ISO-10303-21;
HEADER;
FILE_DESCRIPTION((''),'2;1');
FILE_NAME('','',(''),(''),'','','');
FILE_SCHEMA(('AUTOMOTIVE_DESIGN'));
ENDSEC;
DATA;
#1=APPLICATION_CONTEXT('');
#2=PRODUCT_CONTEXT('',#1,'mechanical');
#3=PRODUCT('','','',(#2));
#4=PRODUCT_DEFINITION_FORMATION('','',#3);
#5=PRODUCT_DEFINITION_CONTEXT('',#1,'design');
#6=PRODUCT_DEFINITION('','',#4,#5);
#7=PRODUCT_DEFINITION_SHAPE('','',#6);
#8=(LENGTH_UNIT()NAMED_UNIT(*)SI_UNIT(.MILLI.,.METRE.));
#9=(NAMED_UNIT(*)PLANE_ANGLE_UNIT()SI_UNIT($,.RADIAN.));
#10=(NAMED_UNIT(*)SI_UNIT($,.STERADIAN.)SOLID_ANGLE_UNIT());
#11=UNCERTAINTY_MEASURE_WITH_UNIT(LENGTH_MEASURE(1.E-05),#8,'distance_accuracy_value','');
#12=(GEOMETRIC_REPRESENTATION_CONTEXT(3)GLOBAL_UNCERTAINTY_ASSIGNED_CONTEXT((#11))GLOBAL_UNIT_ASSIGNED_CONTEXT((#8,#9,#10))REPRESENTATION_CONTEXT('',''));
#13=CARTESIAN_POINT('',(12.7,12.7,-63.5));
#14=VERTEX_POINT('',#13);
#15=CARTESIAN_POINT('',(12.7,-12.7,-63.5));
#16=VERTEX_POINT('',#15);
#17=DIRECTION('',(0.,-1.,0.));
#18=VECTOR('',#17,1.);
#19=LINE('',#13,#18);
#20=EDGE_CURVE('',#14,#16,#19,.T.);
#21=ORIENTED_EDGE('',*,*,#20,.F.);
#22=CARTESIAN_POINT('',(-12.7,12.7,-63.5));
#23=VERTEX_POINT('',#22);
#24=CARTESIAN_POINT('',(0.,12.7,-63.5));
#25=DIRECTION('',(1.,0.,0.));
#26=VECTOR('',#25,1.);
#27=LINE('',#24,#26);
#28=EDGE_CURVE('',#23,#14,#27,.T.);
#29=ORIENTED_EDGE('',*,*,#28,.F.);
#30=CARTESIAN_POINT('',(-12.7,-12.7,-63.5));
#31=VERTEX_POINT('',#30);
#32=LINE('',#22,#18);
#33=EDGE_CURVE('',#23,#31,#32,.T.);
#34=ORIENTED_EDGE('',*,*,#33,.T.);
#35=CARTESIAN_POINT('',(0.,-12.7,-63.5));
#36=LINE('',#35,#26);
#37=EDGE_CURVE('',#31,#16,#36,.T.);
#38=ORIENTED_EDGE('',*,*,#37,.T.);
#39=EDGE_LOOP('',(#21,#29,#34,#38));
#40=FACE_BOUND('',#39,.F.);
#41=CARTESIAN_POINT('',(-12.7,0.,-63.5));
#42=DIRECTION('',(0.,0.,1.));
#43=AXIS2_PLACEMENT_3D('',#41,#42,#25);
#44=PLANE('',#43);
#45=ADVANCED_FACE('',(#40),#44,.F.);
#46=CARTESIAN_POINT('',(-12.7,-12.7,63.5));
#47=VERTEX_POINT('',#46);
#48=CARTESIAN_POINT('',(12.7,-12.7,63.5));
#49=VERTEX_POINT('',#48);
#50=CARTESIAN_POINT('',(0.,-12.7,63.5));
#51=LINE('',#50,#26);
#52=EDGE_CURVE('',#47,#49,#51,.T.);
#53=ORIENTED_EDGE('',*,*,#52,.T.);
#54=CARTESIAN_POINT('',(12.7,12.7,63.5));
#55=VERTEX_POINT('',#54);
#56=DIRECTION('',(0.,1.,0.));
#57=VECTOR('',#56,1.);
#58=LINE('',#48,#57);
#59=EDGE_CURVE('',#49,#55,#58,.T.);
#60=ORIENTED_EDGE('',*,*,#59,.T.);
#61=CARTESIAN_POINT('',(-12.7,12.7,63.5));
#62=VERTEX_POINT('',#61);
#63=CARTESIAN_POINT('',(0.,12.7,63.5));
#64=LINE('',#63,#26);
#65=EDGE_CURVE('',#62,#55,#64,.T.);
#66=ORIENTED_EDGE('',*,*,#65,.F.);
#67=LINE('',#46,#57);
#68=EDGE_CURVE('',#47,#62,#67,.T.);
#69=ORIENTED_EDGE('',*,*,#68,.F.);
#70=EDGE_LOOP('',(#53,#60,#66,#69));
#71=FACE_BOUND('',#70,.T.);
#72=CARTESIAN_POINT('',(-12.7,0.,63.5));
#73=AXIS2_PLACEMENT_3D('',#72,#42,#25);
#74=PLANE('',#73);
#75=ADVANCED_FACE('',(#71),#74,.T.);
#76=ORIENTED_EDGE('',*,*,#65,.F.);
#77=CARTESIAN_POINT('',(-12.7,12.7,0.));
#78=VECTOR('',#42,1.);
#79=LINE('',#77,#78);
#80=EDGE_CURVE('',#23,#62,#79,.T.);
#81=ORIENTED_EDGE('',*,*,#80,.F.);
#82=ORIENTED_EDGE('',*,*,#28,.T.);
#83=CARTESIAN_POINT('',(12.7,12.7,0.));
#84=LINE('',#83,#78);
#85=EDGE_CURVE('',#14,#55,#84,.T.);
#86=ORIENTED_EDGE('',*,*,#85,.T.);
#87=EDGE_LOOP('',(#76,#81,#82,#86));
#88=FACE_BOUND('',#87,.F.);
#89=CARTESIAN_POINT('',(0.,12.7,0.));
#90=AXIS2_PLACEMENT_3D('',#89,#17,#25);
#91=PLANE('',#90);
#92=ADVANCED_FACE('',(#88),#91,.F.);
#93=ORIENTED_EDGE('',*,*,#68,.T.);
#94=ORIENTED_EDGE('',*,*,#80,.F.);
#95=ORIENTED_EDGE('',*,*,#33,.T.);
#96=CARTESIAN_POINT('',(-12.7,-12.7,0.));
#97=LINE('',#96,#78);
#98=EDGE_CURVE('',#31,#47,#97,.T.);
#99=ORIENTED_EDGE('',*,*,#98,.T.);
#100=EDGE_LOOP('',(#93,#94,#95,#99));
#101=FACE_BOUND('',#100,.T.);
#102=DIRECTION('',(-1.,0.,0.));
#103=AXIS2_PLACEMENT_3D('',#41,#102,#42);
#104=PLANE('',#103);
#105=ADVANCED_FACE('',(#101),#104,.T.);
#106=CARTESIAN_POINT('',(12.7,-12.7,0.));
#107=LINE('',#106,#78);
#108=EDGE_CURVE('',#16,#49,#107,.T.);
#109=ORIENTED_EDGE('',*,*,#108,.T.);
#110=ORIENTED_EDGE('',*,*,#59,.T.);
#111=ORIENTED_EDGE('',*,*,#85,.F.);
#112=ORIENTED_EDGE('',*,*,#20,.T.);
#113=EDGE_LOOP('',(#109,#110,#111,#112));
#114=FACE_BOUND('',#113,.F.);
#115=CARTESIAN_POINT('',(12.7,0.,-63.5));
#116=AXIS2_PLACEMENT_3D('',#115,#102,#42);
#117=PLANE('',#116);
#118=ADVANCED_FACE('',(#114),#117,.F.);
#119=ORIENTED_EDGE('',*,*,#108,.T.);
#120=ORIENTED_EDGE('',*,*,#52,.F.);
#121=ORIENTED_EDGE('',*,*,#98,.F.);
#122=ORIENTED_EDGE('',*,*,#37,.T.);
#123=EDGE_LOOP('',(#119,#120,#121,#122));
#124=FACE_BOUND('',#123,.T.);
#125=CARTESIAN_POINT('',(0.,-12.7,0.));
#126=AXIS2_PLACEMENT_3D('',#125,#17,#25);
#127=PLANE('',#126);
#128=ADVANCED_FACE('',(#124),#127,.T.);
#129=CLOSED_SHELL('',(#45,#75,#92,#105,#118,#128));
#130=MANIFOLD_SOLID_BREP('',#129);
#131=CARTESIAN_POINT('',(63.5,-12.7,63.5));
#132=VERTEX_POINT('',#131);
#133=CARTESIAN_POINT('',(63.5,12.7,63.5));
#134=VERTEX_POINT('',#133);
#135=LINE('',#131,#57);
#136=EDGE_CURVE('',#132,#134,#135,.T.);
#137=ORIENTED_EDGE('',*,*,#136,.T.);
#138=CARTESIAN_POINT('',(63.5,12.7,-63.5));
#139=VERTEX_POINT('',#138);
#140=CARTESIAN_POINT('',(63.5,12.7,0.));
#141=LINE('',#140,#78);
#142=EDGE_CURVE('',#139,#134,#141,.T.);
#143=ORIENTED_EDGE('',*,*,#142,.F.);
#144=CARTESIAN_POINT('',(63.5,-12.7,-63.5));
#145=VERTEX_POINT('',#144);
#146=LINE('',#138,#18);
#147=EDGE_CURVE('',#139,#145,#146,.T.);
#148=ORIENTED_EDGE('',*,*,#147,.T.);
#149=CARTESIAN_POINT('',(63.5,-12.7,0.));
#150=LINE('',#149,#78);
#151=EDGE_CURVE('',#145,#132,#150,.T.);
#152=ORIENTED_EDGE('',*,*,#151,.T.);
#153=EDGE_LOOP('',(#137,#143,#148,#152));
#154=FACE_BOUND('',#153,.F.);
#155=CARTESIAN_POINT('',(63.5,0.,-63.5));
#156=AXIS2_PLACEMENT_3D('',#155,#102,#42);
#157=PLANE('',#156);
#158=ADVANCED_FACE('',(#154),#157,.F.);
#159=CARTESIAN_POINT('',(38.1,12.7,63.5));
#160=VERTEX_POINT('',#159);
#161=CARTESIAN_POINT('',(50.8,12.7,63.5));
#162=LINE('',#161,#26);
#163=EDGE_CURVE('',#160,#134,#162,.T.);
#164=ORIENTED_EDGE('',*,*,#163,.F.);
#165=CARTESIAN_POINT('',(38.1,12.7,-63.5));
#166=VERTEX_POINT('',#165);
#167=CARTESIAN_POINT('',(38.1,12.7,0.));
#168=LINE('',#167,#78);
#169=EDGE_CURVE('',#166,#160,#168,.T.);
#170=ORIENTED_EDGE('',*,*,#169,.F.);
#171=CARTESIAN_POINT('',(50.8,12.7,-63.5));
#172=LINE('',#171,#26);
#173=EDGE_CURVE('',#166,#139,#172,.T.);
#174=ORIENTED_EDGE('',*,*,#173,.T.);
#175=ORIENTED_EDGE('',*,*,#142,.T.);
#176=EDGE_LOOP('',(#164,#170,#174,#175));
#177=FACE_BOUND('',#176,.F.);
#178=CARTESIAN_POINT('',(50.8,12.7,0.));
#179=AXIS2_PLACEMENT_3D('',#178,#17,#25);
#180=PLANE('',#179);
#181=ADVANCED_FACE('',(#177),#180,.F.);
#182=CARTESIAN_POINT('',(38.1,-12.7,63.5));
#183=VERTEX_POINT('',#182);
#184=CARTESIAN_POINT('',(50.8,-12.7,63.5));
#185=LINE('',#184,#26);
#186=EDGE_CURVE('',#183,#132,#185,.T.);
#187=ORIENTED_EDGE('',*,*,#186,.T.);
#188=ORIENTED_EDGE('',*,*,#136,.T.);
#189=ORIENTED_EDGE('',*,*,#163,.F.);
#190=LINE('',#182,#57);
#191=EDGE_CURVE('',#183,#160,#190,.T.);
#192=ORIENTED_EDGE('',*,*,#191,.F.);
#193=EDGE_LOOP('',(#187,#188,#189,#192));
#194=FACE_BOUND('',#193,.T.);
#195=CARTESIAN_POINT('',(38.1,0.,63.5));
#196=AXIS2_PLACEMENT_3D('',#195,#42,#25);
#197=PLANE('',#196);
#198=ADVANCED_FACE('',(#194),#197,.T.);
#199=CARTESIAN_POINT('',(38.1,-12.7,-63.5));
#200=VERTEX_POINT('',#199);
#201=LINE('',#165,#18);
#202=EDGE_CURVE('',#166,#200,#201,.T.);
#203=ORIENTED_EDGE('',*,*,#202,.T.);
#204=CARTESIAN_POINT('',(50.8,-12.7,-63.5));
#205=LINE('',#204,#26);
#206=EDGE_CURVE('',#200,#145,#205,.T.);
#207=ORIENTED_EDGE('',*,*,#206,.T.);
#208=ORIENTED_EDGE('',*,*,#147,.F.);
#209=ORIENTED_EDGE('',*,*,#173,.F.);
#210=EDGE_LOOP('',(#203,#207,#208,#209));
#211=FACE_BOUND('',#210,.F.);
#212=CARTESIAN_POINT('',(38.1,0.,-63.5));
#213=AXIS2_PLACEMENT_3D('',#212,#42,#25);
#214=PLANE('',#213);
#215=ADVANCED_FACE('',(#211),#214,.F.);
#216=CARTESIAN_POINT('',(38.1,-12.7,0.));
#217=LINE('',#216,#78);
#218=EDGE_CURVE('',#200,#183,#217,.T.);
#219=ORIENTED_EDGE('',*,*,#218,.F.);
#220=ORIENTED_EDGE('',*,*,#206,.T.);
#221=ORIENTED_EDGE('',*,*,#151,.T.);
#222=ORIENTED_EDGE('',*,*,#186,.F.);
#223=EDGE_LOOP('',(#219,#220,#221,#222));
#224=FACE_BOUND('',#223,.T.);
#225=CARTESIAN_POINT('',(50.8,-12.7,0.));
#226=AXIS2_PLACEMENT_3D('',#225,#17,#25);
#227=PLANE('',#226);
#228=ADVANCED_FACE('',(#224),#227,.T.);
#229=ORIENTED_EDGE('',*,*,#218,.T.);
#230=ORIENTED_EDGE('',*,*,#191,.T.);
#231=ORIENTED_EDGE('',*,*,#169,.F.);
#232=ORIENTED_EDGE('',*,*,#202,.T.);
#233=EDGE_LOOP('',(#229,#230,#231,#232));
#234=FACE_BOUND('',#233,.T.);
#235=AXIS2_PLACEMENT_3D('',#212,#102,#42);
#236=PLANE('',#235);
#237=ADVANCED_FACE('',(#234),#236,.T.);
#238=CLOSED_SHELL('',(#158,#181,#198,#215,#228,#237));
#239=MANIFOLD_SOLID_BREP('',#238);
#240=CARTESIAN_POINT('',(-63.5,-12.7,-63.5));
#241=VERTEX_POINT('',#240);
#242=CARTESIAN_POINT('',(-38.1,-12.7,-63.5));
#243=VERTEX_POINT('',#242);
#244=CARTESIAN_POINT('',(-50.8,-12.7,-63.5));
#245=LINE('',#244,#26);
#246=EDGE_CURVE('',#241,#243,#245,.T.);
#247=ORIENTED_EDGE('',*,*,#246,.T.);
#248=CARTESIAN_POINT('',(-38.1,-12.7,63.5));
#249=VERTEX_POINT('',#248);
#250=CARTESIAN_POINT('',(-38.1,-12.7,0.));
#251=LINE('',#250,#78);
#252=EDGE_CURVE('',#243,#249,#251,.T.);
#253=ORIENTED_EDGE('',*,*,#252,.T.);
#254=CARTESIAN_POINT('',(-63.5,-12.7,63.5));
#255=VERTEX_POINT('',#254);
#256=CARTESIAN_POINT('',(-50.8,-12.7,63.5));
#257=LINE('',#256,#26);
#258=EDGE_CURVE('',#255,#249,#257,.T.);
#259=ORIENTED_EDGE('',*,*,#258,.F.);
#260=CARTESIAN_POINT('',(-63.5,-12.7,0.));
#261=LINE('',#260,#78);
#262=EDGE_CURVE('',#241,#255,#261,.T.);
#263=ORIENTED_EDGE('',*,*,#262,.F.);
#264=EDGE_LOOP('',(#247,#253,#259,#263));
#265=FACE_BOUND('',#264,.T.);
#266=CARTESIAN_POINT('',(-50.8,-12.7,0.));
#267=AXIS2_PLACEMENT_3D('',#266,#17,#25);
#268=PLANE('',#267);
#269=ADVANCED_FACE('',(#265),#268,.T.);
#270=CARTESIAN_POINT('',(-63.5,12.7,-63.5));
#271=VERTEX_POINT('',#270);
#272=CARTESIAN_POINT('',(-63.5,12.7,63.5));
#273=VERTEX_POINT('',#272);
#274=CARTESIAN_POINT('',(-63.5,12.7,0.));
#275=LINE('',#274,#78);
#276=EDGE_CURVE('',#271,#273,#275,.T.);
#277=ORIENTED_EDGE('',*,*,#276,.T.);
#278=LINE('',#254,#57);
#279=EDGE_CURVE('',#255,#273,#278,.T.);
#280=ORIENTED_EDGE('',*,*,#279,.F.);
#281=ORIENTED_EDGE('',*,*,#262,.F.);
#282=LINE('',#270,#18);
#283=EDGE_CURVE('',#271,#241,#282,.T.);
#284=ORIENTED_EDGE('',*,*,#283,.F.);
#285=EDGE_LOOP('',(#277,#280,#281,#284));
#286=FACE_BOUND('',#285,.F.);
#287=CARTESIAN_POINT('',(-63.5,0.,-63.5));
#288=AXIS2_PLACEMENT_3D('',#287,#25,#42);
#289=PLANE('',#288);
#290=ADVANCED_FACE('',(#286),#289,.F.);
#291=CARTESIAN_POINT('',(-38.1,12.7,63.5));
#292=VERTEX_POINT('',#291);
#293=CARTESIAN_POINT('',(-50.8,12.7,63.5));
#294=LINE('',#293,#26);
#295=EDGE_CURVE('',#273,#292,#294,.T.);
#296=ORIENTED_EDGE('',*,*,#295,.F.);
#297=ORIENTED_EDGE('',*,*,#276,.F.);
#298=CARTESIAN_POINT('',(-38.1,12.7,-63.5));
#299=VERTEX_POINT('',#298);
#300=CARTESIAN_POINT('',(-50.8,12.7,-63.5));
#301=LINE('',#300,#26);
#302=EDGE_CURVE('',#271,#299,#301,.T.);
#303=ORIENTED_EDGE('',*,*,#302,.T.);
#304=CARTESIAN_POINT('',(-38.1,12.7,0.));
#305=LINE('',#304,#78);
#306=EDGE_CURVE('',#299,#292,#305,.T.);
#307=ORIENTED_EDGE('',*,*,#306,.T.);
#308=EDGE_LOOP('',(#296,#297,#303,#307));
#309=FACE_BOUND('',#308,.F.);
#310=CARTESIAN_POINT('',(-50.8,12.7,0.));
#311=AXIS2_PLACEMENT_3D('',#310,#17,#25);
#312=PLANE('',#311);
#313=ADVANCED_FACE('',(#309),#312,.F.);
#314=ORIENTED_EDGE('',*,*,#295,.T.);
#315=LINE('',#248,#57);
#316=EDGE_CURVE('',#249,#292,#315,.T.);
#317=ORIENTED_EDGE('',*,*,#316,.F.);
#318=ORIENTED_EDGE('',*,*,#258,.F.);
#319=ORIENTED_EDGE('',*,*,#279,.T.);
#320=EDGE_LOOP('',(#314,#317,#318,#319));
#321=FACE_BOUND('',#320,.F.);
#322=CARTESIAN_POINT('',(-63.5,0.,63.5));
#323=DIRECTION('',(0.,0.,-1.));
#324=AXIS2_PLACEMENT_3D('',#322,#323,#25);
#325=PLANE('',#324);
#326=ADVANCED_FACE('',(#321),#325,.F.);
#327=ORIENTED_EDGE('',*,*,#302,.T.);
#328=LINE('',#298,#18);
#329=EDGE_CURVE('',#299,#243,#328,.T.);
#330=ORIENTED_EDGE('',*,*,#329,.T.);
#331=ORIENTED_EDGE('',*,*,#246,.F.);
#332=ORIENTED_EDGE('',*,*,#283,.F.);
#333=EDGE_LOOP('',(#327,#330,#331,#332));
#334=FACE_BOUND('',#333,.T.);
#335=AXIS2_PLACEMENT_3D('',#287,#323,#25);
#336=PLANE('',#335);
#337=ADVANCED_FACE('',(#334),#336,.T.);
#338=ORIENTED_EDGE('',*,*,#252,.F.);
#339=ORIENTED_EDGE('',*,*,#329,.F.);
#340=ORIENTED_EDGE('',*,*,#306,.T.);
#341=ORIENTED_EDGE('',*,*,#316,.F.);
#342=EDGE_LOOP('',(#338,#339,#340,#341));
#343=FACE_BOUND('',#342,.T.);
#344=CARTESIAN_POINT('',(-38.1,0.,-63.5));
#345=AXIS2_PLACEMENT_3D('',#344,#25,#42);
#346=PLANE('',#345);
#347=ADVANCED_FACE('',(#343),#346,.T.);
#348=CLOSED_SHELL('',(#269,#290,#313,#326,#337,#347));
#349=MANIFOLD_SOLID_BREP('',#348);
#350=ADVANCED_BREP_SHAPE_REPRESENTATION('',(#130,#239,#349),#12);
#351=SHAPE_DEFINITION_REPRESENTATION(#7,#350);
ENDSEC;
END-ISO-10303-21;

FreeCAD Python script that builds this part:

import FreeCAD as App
import Part
import Sketcher
Q = App.Units.Quantity

doc = App.newDocument("Part")
body = doc.addObject("PartDesign::Body", "Body")
body.AllowCompound = True

# Sketch on XZ plane
sketch1 = body.newObject("Sketcher::SketchObject", "Sketch")
sketch1.AttachmentSupport = (doc.getObject("XZ_Plane"), [""])
sketch1.MapMode = "FlatFace"
sketch1.addGeometry([
    Part.LineSegment(App.Vector(-13, 64, 0), App.Vector(-13, -64, 0)),  # 0
    Part.LineSegment(App.Vector(-13, -64, 0), App.Vector(13, -64, 0)),  # 1
    Part.LineSegment(App.Vector(13, -64, 0), App.Vector(13, 64, 0)),  # 2
    Part.LineSegment(App.Vector(13, 64, 0), App.Vector(-13, 64, 0)),  # 3
    Part.LineSegment(App.Vector(38, 64, 0), App.Vector(38, -64, 0)),  # 4
    Part.LineSegment(App.Vector(38, -64, 0), App.Vector(64, -64, 0)),  # 5
    Part.LineSegment(App.Vector(64, -64, 0), App.Vector(64, 64, 0)),  # 6
    Part.LineSegment(App.Vector(64, 64, 0), App.Vector(38, 64, 0)),  # 7
    Part.LineSegment(App.Vector(-64, 64, 0), App.Vector(-64, -64, 0)),  # 8
    Part.LineSegment(App.Vector(-64, -64, 0), App.Vector(-38, -64, 0)),  # 9
    Part.LineSegment(App.Vector(-38, -64, 0), App.Vector(-38, 64, 0)),  # 10
    Part.LineSegment(App.Vector(-38, 64, 0), App.Vector(-64, 64, 0)),  # 11
], False)
sketch1.addConstraint([
    Sketcher.Constraint("Coincident", 0, 2, 1, 1),
    Sketcher.Constraint("Coincident", 1, 2, 2, 1),
    Sketcher.Constraint("Coincident", 2, 2, 3, 1),
    Sketcher.Constraint("Coincident", 3, 2, 0, 1),
    Sketcher.Constraint("Coincident", 4, 2, 5, 1),
    Sketcher.Constraint("Coincident", 5, 2, 6, 1),
    Sketcher.Constraint("Coincident", 6, 2, 7, 1),
    Sketcher.Constraint("Coincident", 7, 2, 4, 1),
    Sketcher.Constraint("Coincident", 8, 2, 9, 1),
    Sketcher.Constraint("Coincident", 9, 2, 10, 1),
    Sketcher.Constraint("Coincident", 10, 2, 11, 1),
    Sketcher.Constraint("Coincident", 11, 2, 8, 1),
    Sketcher.Constraint("Vertical", 0),
    Sketcher.Constraint("Horizontal", 1),
    Sketcher.Constraint("Vertical", 2),
    Sketcher.Constraint("Horizontal", 3),
    Sketcher.Constraint("Vertical", 4),
    Sketcher.Constraint("Horizontal", 5),
    Sketcher.Constraint("Vertical", 6),
    Sketcher.Constraint("Horizontal", 7),
    Sketcher.Constraint("Vertical", 8),
    Sketcher.Constraint("Horizontal", 9),
    Sketcher.Constraint("Vertical", 10),
    Sketcher.Constraint("Horizontal", 11),
    Sketcher.Constraint("Symmetric", 0, 2, 2, 2, -1, 1),
    Sketcher.Constraint("Symmetric", 6, 2, 8, 2, -1, 1),
    Sketcher.Constraint("Symmetric", 4, 2, 10, 2, -1, 1),
    Sketcher.Constraint("Horizontal", 1, 2, 4, 2),
    Sketcher.Constraint("Horizontal", 3, 2, 6, 2),
    Sketcher.Constraint("Equal", 3, 5),
    Sketcher.Constraint("DistanceX", 1, 1, 1, 2, Q("1 in")),
    Sketcher.Constraint("DistanceY", 0, 2, 0, 1, Q("5 in")),
    Sketcher.Constraint("DistanceX", 1, 2, 4, 2, Q("1 in")),
])
pad1 = body.newObject("PartDesign::Pad", "Pad")
pad1.Profile = sketch1
pad1.Length = Q("1 in")
pad1.Midplane = True

doc.recompute()
